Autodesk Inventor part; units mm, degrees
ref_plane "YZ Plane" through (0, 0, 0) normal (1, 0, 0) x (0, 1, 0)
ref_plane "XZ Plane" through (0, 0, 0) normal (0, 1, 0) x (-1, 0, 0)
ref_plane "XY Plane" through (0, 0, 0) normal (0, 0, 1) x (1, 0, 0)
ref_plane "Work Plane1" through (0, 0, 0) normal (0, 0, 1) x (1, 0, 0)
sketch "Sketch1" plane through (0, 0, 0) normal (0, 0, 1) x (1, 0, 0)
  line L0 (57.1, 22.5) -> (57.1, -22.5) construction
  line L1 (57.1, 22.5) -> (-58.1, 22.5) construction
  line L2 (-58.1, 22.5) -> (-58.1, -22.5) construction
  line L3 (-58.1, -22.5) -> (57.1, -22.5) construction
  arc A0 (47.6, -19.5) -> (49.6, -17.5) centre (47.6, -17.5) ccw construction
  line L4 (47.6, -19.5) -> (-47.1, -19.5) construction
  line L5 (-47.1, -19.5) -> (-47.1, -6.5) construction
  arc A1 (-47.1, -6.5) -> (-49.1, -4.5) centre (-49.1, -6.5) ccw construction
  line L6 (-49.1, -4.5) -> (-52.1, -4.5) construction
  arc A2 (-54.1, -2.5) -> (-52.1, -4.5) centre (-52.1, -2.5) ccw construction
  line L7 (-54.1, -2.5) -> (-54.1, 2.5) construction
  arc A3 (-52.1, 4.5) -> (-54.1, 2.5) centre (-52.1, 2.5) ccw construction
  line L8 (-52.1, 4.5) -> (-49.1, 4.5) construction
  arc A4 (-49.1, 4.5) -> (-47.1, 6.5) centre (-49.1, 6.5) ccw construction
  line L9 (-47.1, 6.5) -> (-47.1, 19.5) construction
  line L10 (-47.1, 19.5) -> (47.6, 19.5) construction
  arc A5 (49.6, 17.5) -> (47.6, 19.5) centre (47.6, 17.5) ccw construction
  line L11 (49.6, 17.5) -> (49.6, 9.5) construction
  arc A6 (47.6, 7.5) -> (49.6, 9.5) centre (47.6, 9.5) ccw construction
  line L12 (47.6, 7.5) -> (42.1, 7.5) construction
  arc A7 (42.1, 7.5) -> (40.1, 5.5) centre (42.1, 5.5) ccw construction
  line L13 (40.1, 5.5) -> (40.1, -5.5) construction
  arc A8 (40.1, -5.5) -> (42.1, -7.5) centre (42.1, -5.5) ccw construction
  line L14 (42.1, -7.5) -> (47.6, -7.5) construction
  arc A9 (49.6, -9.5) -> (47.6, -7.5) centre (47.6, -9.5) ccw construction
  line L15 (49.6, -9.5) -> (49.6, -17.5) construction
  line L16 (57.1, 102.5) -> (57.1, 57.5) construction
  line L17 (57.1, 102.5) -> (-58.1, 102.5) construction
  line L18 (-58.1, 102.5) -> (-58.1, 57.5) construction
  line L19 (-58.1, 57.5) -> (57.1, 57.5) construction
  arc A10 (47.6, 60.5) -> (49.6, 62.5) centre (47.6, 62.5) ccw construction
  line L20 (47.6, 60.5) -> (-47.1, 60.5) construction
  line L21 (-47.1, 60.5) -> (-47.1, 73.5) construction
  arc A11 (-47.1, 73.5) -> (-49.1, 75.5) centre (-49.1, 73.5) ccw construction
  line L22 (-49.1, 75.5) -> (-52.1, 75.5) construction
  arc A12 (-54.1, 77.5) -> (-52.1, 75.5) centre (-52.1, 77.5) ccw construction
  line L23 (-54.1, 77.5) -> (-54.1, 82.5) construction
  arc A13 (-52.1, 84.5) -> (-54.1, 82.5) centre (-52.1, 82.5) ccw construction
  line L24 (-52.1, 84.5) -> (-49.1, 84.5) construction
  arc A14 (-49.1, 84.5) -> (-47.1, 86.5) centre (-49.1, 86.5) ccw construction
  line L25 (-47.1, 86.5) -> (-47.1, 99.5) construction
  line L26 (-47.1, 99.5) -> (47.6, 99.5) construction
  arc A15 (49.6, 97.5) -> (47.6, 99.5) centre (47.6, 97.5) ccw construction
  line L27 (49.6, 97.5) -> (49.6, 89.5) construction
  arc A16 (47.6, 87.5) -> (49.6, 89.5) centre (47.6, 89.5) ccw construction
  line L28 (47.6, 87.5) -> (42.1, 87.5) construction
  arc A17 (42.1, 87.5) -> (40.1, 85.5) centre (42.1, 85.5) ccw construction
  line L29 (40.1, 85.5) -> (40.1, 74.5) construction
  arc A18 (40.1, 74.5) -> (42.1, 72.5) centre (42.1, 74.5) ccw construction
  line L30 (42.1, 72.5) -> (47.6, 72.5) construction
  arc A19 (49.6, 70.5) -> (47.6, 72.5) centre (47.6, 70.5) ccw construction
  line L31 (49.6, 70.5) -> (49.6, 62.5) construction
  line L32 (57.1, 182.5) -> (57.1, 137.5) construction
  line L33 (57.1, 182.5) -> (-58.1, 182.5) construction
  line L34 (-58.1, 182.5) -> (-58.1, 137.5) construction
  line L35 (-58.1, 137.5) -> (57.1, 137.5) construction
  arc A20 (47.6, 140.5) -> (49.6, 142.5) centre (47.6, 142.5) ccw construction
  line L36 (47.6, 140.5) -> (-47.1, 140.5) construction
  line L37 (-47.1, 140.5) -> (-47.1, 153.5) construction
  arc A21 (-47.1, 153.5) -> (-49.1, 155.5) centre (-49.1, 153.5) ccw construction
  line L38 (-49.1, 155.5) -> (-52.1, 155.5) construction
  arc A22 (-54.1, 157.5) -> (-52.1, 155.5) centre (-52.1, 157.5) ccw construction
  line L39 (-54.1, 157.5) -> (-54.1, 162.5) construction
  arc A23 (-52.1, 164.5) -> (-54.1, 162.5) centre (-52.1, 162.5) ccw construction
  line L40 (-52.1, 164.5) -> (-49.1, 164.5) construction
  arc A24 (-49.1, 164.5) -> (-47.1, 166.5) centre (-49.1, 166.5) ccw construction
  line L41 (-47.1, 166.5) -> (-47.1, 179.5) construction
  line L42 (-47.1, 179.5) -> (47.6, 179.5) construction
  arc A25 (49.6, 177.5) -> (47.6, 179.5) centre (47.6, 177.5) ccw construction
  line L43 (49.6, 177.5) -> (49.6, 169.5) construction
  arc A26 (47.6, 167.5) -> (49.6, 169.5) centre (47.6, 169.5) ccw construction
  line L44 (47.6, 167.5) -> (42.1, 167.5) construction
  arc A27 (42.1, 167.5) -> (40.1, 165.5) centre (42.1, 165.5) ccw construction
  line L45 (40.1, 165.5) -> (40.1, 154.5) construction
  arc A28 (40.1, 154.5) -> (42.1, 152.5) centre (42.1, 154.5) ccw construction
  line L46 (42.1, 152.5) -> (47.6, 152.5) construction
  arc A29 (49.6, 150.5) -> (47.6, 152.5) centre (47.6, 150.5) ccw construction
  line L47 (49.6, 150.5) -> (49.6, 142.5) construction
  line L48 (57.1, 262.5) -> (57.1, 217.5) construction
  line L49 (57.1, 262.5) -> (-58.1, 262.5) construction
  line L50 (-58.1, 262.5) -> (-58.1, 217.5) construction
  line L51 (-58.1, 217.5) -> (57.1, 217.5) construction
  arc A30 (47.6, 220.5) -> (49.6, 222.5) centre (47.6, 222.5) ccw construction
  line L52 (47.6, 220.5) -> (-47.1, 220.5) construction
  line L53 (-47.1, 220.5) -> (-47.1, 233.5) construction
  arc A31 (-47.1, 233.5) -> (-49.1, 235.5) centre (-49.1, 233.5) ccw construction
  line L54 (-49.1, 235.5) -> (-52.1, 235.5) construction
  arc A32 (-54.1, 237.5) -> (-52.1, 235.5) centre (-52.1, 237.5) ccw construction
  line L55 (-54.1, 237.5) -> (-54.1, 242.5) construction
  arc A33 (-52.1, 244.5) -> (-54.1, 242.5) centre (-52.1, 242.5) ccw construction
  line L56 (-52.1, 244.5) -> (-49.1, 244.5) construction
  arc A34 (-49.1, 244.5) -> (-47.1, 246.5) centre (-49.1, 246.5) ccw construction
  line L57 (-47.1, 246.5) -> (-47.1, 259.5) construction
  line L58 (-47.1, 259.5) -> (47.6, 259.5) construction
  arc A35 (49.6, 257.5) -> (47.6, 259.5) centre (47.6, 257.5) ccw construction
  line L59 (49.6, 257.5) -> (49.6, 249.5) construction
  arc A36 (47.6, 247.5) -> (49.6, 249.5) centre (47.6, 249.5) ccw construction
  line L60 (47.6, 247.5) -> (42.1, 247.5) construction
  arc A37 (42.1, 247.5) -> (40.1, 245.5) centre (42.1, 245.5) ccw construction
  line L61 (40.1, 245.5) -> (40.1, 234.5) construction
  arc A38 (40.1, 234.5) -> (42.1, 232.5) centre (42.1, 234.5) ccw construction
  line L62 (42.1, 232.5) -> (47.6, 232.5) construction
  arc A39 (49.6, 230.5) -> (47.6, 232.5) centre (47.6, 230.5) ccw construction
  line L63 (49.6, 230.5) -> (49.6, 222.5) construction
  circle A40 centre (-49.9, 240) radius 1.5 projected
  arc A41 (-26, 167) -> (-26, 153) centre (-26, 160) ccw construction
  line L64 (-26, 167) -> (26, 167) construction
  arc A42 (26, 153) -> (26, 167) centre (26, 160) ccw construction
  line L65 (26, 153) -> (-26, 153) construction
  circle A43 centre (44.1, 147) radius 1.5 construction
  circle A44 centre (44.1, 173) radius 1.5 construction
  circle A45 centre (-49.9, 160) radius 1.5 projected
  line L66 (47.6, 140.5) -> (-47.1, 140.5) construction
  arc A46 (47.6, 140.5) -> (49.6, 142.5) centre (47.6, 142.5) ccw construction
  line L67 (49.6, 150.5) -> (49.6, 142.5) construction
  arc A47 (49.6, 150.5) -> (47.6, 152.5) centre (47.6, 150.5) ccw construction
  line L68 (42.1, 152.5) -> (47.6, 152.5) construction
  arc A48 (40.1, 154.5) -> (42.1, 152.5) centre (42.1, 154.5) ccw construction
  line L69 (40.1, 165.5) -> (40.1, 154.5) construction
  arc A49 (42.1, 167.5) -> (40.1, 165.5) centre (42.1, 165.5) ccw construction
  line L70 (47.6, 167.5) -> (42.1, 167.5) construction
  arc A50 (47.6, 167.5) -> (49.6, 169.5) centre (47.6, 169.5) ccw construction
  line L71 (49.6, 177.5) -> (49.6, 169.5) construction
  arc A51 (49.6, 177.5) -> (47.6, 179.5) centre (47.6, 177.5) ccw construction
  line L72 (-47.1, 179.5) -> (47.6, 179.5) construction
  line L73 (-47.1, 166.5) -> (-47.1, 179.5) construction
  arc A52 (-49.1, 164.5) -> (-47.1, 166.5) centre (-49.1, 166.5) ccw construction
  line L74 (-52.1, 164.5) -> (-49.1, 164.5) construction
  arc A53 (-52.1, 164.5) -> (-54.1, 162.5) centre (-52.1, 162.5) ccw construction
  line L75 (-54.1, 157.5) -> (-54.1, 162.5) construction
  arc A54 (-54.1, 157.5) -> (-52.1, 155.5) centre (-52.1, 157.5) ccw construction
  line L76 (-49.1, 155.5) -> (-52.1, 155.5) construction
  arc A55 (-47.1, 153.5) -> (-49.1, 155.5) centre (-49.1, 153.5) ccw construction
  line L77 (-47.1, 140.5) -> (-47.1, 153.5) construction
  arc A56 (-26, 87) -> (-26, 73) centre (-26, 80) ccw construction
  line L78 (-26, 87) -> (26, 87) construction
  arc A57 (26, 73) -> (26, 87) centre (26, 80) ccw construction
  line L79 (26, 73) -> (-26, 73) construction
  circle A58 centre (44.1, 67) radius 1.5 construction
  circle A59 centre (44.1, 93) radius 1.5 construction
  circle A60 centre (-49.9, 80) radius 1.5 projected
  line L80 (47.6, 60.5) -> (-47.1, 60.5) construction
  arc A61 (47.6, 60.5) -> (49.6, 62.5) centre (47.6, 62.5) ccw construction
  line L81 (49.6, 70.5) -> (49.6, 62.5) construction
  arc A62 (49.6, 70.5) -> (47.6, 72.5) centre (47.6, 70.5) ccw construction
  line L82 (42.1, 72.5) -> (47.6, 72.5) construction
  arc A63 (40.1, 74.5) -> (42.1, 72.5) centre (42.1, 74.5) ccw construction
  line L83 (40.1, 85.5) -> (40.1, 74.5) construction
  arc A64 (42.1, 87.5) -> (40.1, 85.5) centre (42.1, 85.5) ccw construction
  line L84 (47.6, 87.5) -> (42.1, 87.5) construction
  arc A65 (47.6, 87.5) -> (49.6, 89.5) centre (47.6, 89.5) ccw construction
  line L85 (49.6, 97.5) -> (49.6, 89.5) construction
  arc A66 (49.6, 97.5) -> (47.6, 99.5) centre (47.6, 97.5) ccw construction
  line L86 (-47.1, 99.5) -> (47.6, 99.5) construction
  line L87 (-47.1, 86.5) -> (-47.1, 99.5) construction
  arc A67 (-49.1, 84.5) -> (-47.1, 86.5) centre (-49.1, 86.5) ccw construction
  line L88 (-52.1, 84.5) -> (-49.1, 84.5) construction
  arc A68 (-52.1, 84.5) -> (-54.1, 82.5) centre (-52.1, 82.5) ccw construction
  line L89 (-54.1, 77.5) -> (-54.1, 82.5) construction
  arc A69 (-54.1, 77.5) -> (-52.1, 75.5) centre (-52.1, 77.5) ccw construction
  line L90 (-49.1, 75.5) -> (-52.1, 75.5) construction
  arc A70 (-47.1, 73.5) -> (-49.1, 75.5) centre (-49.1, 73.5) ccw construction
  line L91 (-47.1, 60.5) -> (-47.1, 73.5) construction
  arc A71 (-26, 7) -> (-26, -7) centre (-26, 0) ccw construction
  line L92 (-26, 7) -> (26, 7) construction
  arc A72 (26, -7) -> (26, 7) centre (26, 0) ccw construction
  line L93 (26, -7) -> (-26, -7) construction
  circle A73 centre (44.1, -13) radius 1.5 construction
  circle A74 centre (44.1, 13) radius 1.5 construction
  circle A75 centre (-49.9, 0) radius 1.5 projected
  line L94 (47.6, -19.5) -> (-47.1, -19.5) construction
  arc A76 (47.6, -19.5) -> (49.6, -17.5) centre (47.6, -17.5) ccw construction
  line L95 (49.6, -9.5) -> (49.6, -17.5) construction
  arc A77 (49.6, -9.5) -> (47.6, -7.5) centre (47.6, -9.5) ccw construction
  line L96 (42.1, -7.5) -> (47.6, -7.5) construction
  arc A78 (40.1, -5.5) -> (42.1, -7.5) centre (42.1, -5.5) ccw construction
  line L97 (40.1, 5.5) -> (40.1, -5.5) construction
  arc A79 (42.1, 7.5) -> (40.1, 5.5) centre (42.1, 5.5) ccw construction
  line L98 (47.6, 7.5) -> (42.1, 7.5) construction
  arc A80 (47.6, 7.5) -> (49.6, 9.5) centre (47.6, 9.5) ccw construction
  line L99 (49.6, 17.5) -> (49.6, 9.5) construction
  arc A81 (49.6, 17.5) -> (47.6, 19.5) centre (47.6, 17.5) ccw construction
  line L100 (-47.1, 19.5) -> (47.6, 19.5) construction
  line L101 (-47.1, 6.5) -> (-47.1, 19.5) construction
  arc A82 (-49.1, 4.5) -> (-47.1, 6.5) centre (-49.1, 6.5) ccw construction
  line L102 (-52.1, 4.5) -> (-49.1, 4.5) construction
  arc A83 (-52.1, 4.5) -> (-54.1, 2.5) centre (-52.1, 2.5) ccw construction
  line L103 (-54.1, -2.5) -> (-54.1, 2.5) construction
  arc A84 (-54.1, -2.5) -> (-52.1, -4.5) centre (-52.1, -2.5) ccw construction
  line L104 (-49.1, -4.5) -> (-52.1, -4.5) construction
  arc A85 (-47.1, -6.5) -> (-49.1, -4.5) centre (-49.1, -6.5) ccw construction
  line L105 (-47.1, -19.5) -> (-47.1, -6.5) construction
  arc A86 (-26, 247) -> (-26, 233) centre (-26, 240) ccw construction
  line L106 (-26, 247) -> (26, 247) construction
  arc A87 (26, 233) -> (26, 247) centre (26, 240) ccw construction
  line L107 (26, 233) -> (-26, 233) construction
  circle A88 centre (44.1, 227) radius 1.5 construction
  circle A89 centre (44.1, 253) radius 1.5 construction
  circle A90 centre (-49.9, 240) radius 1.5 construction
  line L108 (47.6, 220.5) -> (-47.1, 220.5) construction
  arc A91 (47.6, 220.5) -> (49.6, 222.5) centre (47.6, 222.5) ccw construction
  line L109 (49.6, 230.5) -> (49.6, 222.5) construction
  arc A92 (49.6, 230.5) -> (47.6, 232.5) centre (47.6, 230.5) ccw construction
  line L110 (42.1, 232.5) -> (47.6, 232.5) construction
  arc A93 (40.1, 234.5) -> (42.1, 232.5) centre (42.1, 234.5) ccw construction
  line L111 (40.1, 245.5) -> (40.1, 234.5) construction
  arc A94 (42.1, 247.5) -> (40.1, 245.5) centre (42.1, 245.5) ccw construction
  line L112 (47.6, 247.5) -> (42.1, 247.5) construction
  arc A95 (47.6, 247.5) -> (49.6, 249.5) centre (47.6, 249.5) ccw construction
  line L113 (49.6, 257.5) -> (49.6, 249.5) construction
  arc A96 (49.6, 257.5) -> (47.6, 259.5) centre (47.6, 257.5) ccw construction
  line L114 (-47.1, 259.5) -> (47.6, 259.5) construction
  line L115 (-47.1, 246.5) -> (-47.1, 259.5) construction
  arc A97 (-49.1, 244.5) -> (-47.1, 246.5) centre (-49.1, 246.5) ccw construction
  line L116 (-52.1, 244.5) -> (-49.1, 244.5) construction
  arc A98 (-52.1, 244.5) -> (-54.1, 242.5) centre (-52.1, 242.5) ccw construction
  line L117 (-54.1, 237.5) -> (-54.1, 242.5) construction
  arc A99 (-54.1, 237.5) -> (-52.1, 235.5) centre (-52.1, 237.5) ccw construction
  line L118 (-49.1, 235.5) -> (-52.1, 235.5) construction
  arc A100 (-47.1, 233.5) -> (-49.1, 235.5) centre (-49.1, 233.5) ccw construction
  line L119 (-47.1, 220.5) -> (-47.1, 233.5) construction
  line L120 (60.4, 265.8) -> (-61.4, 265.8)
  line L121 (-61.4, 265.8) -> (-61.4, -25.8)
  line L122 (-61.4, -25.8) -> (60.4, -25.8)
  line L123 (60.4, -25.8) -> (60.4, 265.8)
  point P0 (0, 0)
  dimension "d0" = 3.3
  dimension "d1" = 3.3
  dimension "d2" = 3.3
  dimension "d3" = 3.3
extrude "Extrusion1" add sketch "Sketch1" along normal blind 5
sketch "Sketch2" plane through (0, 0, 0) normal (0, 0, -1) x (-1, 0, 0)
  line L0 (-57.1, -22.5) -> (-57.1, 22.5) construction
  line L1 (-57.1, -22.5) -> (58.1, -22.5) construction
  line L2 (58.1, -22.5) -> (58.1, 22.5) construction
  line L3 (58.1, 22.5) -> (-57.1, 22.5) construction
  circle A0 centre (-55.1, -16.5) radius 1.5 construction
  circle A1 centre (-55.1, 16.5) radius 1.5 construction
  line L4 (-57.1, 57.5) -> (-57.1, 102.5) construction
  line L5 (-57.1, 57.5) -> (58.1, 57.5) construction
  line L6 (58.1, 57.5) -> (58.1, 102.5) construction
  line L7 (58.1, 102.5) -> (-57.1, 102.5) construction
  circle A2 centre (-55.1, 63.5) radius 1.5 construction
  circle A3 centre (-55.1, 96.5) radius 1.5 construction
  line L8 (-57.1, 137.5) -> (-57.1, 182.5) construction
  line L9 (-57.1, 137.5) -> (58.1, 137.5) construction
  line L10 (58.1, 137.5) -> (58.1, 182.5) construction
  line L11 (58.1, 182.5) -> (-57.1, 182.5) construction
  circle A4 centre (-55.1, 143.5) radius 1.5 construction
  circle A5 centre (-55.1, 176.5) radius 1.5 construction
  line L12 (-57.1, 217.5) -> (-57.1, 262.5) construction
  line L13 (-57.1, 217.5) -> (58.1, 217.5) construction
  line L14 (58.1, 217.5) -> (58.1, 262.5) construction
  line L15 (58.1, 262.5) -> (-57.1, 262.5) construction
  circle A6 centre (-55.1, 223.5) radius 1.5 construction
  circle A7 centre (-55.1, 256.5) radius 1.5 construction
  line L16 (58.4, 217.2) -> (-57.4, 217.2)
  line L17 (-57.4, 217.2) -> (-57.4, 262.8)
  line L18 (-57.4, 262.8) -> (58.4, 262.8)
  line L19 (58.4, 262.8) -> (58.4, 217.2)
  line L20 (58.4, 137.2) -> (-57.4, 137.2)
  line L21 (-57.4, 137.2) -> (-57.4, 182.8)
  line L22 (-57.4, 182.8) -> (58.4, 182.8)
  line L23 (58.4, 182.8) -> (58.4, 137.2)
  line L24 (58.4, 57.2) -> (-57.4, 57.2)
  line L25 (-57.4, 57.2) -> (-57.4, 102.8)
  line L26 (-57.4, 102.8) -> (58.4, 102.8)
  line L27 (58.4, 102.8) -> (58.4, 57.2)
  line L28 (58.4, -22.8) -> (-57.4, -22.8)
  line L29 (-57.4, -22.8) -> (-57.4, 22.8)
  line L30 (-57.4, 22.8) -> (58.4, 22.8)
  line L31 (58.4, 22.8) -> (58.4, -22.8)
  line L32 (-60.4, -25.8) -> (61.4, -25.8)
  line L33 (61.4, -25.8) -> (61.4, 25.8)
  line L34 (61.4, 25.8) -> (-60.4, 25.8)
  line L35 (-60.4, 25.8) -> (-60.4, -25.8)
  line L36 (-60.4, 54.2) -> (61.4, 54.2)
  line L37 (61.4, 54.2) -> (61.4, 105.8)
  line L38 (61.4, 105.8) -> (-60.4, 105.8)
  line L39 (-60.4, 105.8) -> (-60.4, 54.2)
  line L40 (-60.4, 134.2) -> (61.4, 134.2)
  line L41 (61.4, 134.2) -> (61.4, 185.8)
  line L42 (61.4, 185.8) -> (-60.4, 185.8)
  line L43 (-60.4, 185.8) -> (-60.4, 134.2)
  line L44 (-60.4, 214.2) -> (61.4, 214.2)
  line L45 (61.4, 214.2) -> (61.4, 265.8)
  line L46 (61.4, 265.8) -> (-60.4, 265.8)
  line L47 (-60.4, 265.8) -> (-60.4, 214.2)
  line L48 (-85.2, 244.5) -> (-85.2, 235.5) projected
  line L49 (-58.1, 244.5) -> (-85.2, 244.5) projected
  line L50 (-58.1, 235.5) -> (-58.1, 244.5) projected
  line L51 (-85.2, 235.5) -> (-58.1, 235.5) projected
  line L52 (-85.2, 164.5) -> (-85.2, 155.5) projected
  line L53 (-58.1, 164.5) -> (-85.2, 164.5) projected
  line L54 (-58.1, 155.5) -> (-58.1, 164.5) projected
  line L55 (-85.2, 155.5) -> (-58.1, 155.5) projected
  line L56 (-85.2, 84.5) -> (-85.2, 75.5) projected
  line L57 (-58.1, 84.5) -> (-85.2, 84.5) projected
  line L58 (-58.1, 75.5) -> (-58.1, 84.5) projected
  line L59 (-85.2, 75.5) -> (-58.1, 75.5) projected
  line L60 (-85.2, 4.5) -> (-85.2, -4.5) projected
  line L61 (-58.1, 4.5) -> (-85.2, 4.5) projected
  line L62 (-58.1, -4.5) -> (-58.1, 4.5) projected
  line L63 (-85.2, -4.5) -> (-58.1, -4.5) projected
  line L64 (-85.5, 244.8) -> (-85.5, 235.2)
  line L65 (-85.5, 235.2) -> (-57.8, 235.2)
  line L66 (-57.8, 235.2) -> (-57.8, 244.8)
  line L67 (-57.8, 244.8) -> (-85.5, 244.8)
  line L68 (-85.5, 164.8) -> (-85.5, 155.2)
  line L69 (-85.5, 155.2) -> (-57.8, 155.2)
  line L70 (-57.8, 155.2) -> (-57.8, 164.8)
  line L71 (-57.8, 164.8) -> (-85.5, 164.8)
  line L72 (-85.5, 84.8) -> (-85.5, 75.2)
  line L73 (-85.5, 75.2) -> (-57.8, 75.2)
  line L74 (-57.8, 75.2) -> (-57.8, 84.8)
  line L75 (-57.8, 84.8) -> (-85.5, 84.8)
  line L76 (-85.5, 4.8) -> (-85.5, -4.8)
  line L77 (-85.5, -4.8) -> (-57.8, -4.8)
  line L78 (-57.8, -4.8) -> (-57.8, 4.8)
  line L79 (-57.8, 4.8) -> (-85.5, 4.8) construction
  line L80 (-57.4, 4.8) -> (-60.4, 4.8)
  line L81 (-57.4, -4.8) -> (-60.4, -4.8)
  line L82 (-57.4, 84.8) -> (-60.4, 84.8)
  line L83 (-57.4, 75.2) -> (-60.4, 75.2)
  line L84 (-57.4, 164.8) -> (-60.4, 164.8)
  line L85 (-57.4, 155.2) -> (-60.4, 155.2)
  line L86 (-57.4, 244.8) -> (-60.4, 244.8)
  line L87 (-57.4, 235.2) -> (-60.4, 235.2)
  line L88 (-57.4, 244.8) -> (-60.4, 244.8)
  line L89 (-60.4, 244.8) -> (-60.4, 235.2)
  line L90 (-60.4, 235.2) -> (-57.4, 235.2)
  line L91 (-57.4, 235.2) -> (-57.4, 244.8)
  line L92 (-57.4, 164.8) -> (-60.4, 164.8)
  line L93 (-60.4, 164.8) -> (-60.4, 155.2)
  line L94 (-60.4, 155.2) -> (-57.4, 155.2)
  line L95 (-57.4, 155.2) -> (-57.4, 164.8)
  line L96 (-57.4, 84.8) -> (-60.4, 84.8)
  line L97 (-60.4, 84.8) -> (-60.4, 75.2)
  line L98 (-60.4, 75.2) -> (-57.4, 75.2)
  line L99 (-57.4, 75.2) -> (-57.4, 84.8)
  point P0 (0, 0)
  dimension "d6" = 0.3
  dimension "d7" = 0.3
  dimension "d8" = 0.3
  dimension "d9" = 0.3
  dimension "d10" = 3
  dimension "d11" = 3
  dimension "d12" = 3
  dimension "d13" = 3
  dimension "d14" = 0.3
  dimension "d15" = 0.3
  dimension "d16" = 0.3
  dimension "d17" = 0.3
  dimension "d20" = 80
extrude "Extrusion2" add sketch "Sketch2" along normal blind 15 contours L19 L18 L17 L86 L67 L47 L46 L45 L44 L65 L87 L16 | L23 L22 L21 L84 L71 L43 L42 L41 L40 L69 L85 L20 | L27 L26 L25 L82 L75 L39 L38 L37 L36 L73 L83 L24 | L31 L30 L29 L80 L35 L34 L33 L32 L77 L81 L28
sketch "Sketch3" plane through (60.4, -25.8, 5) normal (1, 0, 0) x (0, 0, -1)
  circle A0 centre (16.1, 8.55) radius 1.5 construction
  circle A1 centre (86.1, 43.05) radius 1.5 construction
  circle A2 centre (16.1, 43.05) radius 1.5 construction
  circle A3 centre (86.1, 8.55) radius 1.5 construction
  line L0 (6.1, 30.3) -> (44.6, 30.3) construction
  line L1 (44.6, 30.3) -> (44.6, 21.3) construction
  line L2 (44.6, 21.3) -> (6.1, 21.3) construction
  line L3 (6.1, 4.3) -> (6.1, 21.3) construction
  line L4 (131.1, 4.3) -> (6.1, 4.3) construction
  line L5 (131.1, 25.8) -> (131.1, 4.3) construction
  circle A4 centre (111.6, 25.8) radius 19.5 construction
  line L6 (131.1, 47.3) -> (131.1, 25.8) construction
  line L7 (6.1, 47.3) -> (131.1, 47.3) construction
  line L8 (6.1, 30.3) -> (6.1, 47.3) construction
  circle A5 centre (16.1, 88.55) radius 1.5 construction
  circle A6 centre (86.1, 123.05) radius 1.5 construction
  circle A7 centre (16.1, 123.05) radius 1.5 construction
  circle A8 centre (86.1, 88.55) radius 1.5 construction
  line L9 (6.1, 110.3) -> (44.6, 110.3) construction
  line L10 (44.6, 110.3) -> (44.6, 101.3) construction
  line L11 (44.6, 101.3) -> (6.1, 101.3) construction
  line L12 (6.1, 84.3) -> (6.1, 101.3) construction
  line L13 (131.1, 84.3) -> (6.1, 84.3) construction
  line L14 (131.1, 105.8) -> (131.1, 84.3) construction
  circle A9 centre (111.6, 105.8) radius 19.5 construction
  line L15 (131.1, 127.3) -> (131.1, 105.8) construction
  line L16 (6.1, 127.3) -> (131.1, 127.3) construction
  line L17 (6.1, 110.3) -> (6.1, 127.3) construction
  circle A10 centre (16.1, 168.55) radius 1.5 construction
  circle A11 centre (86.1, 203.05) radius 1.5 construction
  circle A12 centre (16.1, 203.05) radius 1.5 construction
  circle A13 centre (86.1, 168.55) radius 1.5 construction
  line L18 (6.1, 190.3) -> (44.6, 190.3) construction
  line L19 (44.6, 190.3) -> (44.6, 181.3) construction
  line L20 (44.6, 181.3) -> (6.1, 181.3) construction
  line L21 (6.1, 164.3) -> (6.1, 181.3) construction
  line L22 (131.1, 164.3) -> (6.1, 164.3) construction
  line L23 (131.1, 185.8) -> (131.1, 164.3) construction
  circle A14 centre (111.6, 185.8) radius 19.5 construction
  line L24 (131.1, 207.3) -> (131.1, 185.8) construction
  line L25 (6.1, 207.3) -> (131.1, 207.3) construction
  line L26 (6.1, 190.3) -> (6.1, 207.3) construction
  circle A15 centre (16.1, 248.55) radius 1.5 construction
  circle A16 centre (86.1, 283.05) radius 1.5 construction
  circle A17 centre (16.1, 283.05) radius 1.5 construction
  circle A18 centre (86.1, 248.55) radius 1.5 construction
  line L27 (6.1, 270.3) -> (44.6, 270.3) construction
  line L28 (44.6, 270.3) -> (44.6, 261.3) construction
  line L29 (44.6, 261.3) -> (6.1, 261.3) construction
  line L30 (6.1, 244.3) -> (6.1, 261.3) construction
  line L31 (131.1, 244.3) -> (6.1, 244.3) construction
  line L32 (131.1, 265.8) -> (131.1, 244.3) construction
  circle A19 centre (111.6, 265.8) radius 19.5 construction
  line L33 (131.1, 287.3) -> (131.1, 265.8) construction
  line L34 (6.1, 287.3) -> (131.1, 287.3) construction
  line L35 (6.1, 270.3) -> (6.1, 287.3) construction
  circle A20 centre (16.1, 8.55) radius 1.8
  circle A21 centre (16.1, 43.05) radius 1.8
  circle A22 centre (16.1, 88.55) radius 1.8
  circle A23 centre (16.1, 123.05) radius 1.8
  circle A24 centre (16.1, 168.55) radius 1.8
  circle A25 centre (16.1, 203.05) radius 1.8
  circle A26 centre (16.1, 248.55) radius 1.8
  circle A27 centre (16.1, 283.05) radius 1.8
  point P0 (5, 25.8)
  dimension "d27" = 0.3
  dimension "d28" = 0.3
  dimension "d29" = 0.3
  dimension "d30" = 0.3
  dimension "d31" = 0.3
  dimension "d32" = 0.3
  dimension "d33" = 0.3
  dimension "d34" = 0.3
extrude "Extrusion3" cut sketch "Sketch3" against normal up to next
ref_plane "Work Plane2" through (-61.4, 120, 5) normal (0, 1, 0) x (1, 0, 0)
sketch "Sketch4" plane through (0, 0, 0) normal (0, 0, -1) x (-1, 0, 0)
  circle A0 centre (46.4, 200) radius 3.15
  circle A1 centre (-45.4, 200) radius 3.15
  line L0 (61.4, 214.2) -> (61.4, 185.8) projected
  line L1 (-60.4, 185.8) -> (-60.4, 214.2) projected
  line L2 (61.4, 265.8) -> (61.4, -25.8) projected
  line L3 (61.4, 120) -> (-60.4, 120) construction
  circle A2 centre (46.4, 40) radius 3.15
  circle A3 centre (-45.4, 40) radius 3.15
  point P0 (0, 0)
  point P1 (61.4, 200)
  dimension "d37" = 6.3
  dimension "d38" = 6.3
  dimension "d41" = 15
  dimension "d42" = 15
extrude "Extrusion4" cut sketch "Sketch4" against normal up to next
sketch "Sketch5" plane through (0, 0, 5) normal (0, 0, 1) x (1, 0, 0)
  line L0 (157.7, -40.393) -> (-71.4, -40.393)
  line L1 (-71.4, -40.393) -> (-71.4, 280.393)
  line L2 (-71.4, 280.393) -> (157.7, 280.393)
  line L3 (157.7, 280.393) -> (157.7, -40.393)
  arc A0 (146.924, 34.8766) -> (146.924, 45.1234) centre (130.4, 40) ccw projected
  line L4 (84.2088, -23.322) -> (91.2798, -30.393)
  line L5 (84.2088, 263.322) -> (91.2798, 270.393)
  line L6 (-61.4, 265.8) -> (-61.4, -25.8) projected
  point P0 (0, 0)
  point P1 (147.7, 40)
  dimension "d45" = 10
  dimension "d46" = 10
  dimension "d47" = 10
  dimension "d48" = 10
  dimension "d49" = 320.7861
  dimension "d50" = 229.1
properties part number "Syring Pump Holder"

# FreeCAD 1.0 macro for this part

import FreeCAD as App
import Part
import Sketcher

V = App.Vector
Q = App.Units.Quantity

doc = App.newDocument("Part")
body = doc.addObject("PartDesign::Body", "Body")

# Sketch on XY plane
sketch1 = body.newObject("Sketcher::SketchObject", "Sketch")
sketch1.AttachmentSupport = (doc.getObject("XY_Plane"), [""])
sketch1.MapMode = "FlatFace"
sketch1.addGeometry(Part.LineSegment(V(60.4, -25.8, 0), V(60.4, 265.8, 0)), False)
sketch1.addGeometry(Part.LineSegment(V(60.4, 265.8, 0), V(-61.4, 265.8, 0)), False)
sketch1.addGeometry(Part.LineSegment(V(-61.4, 265.8, 0), V(-61.4, -25.8, 0)), False)
sketch1.addGeometry(Part.LineSegment(V(-61.4, -25.8, 0), V(60.4, -25.8, 0)), False)
sketch1.addGeometry(Part.Circle(V(-49.9, 0, 0), V(0, 0, 1), 1.5), False)
sketch1.addGeometry(Part.Circle(V(-49.9, 80, 0), V(0, 0, 1), 1.5), False)
sketch1.addGeometry(Part.Circle(V(-49.9, 160, 0), V(0, 0, 1), 1.5), False)
sketch1.addGeometry(Part.Circle(V(-49.9, 240, 0), V(0, 0, 1), 1.5), False)
sketch1.addConstraint(Sketcher.Constraint("Coincident", 0, 2, 1, 1))
sketch1.addConstraint(Sketcher.Constraint("Coincident", 1, 2, 2, 1))
sketch1.addConstraint(Sketcher.Constraint("Coincident", 2, 2, 3, 1))
sketch1.addConstraint(Sketcher.Constraint("Coincident", 3, 2, 0, 1))
sketch1.addConstraint(Sketcher.Constraint("Vertical", 0))
sketch1.addConstraint(Sketcher.Constraint("Horizontal", 1))
sketch1.addConstraint(Sketcher.Constraint("Vertical", 2))
sketch1.addConstraint(Sketcher.Constraint("Horizontal", 3))
sketch1.addConstraint(Sketcher.Constraint("Equal", 4, 5))
sketch1.addConstraint(Sketcher.Constraint("Equal", 5, 6))
sketch1.addConstraint(Sketcher.Constraint("Equal", 6, 7))
sketch1.addConstraint(Sketcher.Constraint("PointOnObject", 4, 3, -1))
sketch1.addConstraint(Sketcher.Constraint("Vertical", 4, 3, 5, 3))
sketch1.addConstraint(Sketcher.Constraint("Vertical", 5, 3, 6, 3))
sketch1.addConstraint(Sketcher.Constraint("Vertical", 6, 3, 7, 3))
sketch1.addConstraint(Sketcher.Constraint("Diameter", 4, Q("3 mm")))
sketch1.addConstraint(Sketcher.Constraint("DistanceX", 1, 2, 1, 1, Q("121.8 mm")))
sketch1.addConstraint(Sketcher.Constraint("DistanceY", 0, 1, 0, 2, Q("291.6 mm")))
sketch1.addConstraint(Sketcher.Constraint("DistanceY", -1, 1, 5, 3, Q("80 mm")))
sketch1.addConstraint(Sketcher.Constraint("DistanceY", -1, 1, 6, 3, Q("160 mm")))
sketch1.addConstraint(Sketcher.Constraint("DistanceY", -1, 1, 7, 3, Q("240 mm")))
sketch1.addConstraint(Sketcher.Constraint("DistanceX", 4, 3, -1, 1, Q("49.9 mm")))
sketch1.addConstraint(Sketcher.Constraint("DistanceX", -1, 1, 0, 2, Q("60.4 mm")))
sketch1.addConstraint(Sketcher.Constraint("DistanceY", -1, 1, 0, 2, Q("265.8 mm")))
pad1 = body.newObject("PartDesign::Pad", "Pad")
pad1.Profile = sketch1
pad1.Length = 5

# Sketch on XY plane
sketch2 = body.newObject("Sketcher::SketchObject", "Sketch001")
sketch2.AttachmentSupport = (doc.getObject("XY_Plane"), [""])
sketch2.MapMode = "FlatFace"
sketch2.addGeometry(Part.LineSegment(V(-58.4, 262.8, 0), V(-58.4, 217.2, 0)), False)
sketch2.addGeometry(Part.LineSegment(V(-58.4, 217.2, 0), V(57.4, 217.2, 0)), False)
sketch2.addGeometry(Part.LineSegment(V(57.4, 217.2, 0), V(57.4, 235.2, 0)), False)
sketch2.addGeometry(Part.LineSegment(V(57.4, 235.2, 0), V(60.4, 235.2, 0)), False)
sketch2.addGeometry(Part.LineSegment(V(60.4, 235.2, 0), V(60.4, 214.2, 0)), False)
sketch2.addGeometry(Part.LineSegment(V(60.4, 214.2, 0), V(-61.4, 214.2, 0)), False)
sketch2.addGeometry(Part.LineSegment(V(-61.4, 214.2, 0), V(-61.4, 265.8, 0)), False)
sketch2.addGeometry(Part.LineSegment(V(-61.4, 265.8, 0), V(60.4, 265.8, 0)), False)
sketch2.addGeometry(Part.LineSegment(V(60.4, 265.8, 0), V(60.4, 244.8, 0)), False)
sketch2.addGeometry(Part.LineSegment(V(60.4, 244.8, 0), V(57.4, 244.8, 0)), False)
sketch2.addGeometry(Part.LineSegment(V(57.4, 244.8, 0), V(57.4, 262.8, 0)), False)
sketch2.addGeometry(Part.LineSegment(V(57.4, 262.8, 0), V(-58.4, 262.8, 0)), False)
sketch2.addGeometry(Part.LineSegment(V(-58.4, 182.8, 0), V(-58.4, 137.2, 0)), False)
sketch2.addGeometry(Part.LineSegment(V(-58.4, 137.2, 0), V(57.4, 137.2, 0)), False)
sketch2.addGeometry(Part.LineSegment(V(57.4, 137.2, 0), V(57.4, 155.2, 0)), False)
sketch2.addGeometry(Part.LineSegment(V(57.4, 155.2, 0), V(60.4, 155.2, 0)), False)
sketch2.addGeometry(Part.LineSegment(V(60.4, 155.2, 0), V(60.4, 134.2, 0)), False)
sketch2.addGeometry(Part.LineSegment(V(60.4, 134.2, 0), V(-61.4, 134.2, 0)), False)
sketch2.addGeometry(Part.LineSegment(V(-61.4, 134.2, 0), V(-61.4, 185.8, 0)), False)
sketch2.addGeometry(Part.LineSegment(V(-61.4, 185.8, 0), V(60.4, 185.8, 0)), False)
sketch2.addGeometry(Part.LineSegment(V(60.4, 185.8, 0), V(60.4, 164.8, 0)), False)
sketch2.addGeometry(Part.LineSegment(V(60.4, 164.8, 0), V(57.4, 164.8, 0)), False)
sketch2.addGeometry(Part.LineSegment(V(57.4, 164.8, 0), V(57.4, 182.8, 0)), False)
sketch2.addGeometry(Part.LineSegment(V(57.4, 182.8, 0), V(-58.4, 182.8, 0)), False)
sketch2.addGeometry(Part.LineSegment(V(-58.4, 102.8, 0), V(-58.4, 57.2, 0)), False)
sketch2.addGeometry(Part.LineSegment(V(-58.4, 57.2, 0), V(57.4, 57.2, 0)), False)
sketch2.addGeometry(Part.LineSegment(V(57.4, 57.2, 0), V(57.4, 75.2, 0)), False)
sketch2.addGeometry(Part.LineSegment(V(57.4, 75.2, 0), V(60.4, 75.2, 0)), False)
sketch2.addGeometry(Part.LineSegment(V(60.4, 75.2, 0), V(60.4, 54.2, 0)), False)
sketch2.addGeometry(Part.LineSegment(V(60.4, 54.2, 0), V(-61.4, 54.2, 0)), False)
sketch2.addGeometry(Part.LineSegment(V(-61.4, 54.2, 0), V(-61.4, 105.8, 0)), False)
sketch2.addGeometry(Part.LineSegment(V(-61.4, 105.8, 0), V(60.4, 105.8, 0)), False)
sketch2.addGeometry(Part.LineSegment(V(60.4, 105.8, 0), V(60.4, 84.8, 0)), False)
sketch2.addGeometry(Part.LineSegment(V(60.4, 84.8, 0), V(57.4, 84.8, 0)), False)
sketch2.addGeometry(Part.LineSegment(V(57.4, 84.8, 0), V(57.4, 102.8, 0)), False)
sketch2.addGeometry(Part.LineSegment(V(57.4, 102.8, 0), V(-58.4, 102.8, 0)), False)
sketch2.addGeometry(Part.LineSegment(V(-58.4, 22.8, 0), V(-58.4, -22.8, 0)), False)
sketch2.addGeometry(Part.LineSegment(V(-58.4, -22.8, 0), V(57.4, -22.8, 0)), False)
sketch2.addGeometry(Part.LineSegment(V(57.4, -22.8, 0), V(57.4, -4.8, 0)), False)
sketch2.addGeometry(Part.LineSegment(V(57.4, -4.8, 0), V(60.4, -4.8, 0)), False)
sketch2.addGeometry(Part.LineSegment(V(60.4, -4.8, 0), V(60.4, -25.8, 0)), False)
sketch2.addGeometry(Part.LineSegment(V(60.4, -25.8, 0), V(-61.4, -25.8, 0)), False)
sketch2.addGeometry(Part.LineSegment(V(-61.4, -25.8, 0), V(-61.4, 25.8, 0)), False)
sketch2.addGeometry(Part.LineSegment(V(-61.4, 25.8, 0), V(60.4, 25.8, 0)), False)
sketch2.addGeometry(Part.LineSegment(V(60.4, 25.8, 0), V(60.4, 4.8, 0)), False)
sketch2.addGeometry(Part.LineSegment(V(60.4, 4.8, 0), V(57.4, 4.8, 0)), False)
sketch2.addGeometry(Part.LineSegment(V(57.4, 4.8, 0), V(57.4, 22.8, 0)), False)
sketch2.addGeometry(Part.LineSegment(V(57.4, 22.8, 0), V(-58.4, 22.8, 0)), False)
sketch2.addConstraint(Sketcher.Constraint("Coincident", 0, 2, 1, 1))
sketch2.addConstraint(Sketcher.Constraint("Coincident", 1, 2, 2, 1))
sketch2.addConstraint(Sketcher.Constraint("Coincident", 2, 2, 3, 1))
sketch2.addConstraint(Sketcher.Constraint("Coincident", 3, 2, 4, 1))
sketch2.addConstraint(Sketcher.Constraint("Coincident", 4, 2, 5, 1))
sketch2.addConstraint(Sketcher.Constraint("Coincident", 5, 2, 6, 1))
sketch2.addConstraint(Sketcher.Constraint("Coincident", 6, 2, 7, 1))
sketch2.addConstraint(Sketcher.Constraint("Coincident", 7, 2, 8, 1))
sketch2.addConstraint(Sketcher.Constraint("Coincident", 8, 2, 9, 1))
sketch2.addConstraint(Sketcher.Constraint("Coincident", 9, 2, 10, 1))
sketch2.addConstraint(Sketcher.Constraint("Coincident", 10, 2, 11, 1))
sketch2.addConstraint(Sketcher.Constraint("Coincident", 11, 2, 0, 1))
sketch2.addConstraint(Sketcher.Constraint("Coincident", 12, 2, 13, 1))
sketch2.addConstraint(Sketcher.Constraint("Coincident", 13, 2, 14, 1))
sketch2.addConstraint(Sketcher.Constraint("Coincident", 14, 2, 15, 1))
sketch2.addConstraint(Sketcher.Constraint("Coincident", 15, 2, 16, 1))
sketch2.addConstraint(Sketcher.Constraint("Coincident", 16, 2, 17, 1))
sketch2.addConstraint(Sketcher.Constraint("Coincident", 17, 2, 18, 1))
sketch2.addConstraint(Sketcher.Constraint("Coincident", 18, 2, 19, 1))
sketch2.addConstraint(Sketcher.Constraint("Coincident", 19, 2, 20, 1))
sketch2.addConstraint(Sketcher.Constraint("Coincident", 20, 2, 21, 1))
sketch2.addConstraint(Sketcher.Constraint("Coincident", 21, 2, 22, 1))
sketch2.addConstraint(Sketcher.Constraint("Coincident", 22, 2, 23, 1))
sketch2.addConstraint(Sketcher.Constraint("Coincident", 23, 2, 12, 1))
sketch2.addConstraint(Sketcher.Constraint("Coincident", 24, 2, 25, 1))
sketch2.addConstraint(Sketcher.Constraint("Coincident", 25, 2, 26, 1))
sketch2.addConstraint(Sketcher.Constraint("Coincident", 26, 2, 27, 1))
sketch2.addConstraint(Sketcher.Constraint("Coincident", 27, 2, 28, 1))
sketch2.addConstraint(Sketcher.Constraint("Coincident", 28, 2, 29, 1))
sketch2.addConstraint(Sketcher.Constraint("Coincident", 29, 2, 30, 1))
sketch2.addConstraint(Sketcher.Constraint("Coincident", 30, 2, 31, 1))
sketch2.addConstraint(Sketcher.Constraint("Coincident", 31, 2, 32, 1))
sketch2.addConstraint(Sketcher.Constraint("Coincident", 32, 2, 33, 1))
sketch2.addConstraint(Sketcher.Constraint("Coincident", 33, 2, 34, 1))
sketch2.addConstraint(Sketcher.Constraint("Coincident", 34, 2, 35, 1))
sketch2.addConstraint(Sketcher.Constraint("Coincident", 35, 2, 24, 1))
sketch2.addConstraint(Sketcher.Constraint("Coincident", 36, 2, 37, 1))
sketch2.addConstraint(Sketcher.Constraint("Coincident", 37, 2, 38, 1))
sketch2.addConstraint(Sketcher.Constraint("Coincident", 38, 2, 39, 1))
sketch2.addConstraint(Sketcher.Constraint("Coincident", 39, 2, 40, 1))
sketch2.addConstraint(Sketcher.Constraint("Coincident", 40, 2, 41, 1))
sketch2.addConstraint(Sketcher.Constraint("Coincident", 41, 2, 42, 1))
sketch2.addConstraint(Sketcher.Constraint("Coincident", 42, 2, 43, 1))
sketch2.addConstraint(Sketcher.Constraint("Coincident", 43, 2, 44, 1))
sketch2.addConstraint(Sketcher.Constraint("Coincident", 44, 2, 45, 1))
sketch2.addConstraint(Sketcher.Constraint("Coincident", 45, 2, 46, 1))
sketch2.addConstraint(Sketcher.Constraint("Coincident", 46, 2, 47, 1))
sketch2.addConstraint(Sketcher.Constraint("Coincident", 47, 2, 36, 1))
sketch2.addConstraint(Sketcher.Constraint("Vertical", 0))
sketch2.addConstraint(Sketcher.Constraint("Horizontal", 1))
sketch2.addConstraint(Sketcher.Constraint("Vertical", 2))
sketch2.addConstraint(Sketcher.Constraint("Horizontal", 3))
sketch2.addConstraint(Sketcher.Constraint("Vertical", 4))
sketch2.addConstraint(Sketcher.Constraint("Horizontal", 5))
sketch2.addConstraint(Sketcher.Constraint("Vertical", 6))
sketch2.addConstraint(Sketcher.Constraint("Horizontal", 7))
sketch2.addConstraint(Sketcher.Constraint("Vertical", 8))
sketch2.addConstraint(Sketcher.Constraint("Horizontal", 9))
sketch2.addConstraint(Sketcher.Constraint("Vertical", 10))
sketch2.addConstraint(Sketcher.Constraint("Horizontal", 11))
sketch2.addConstraint(Sketcher.Constraint("Vertical", 12))
sketch2.addConstraint(Sketcher.Constraint("Horizontal", 13))
sketch2.addConstraint(Sketcher.Constraint("Vertical", 14))
sketch2.addConstraint(Sketcher.Constraint("Horizontal", 15))
sketch2.addConstraint(Sketcher.Constraint("Vertical", 16))
sketch2.addConstraint(Sketcher.Constraint("Horizontal", 17))
sketch2.addConstraint(Sketcher.Constraint("Vertical", 18))
sketch2.addConstraint(Sketcher.Constraint("Horizontal", 19))
sketch2.addConstraint(Sketcher.Constraint("Vertical", 20))
sketch2.addConstraint(Sketcher.Constraint("Horizontal", 21))
sketch2.addConstraint(Sketcher.Constraint("Vertical", 22))
sketch2.addConstraint(Sketcher.Constraint("Horizontal", 23))
sketch2.addConstraint(Sketcher.Constraint("Vertical", 24))
sketch2.addConstraint(Sketcher.Constraint("Horizontal", 25))
sketch2.addConstraint(Sketcher.Constraint("Vertical", 26))
sketch2.addConstraint(Sketcher.Constraint("Horizontal", 27))
sketch2.addConstraint(Sketcher.Constraint("Vertical", 28))
sketch2.addConstraint(Sketcher.Constraint("Horizontal", 29))
sketch2.addConstraint(Sketcher.Constraint("Vertical", 30))
sketch2.addConstraint(Sketcher.Constraint("Horizontal", 31))
sketch2.addConstraint(Sketcher.Constraint("Vertical", 32))
sketch2.addConstraint(Sketcher.Constraint("Horizontal", 33))
sketch2.addConstraint(Sketcher.Constraint("Vertical", 34))
sketch2.addConstraint(Sketcher.Constraint("Horizontal", 35))
sketch2.addConstraint(Sketcher.Constraint("Vertical", 36))
sketch2.addConstraint(Sketcher.Constraint("Horizontal", 37))
sketch2.addConstraint(Sketcher.Constraint("Vertical", 38))
sketch2.addConstraint(Sketcher.Constraint("Horizontal", 39))
sketch2.addConstraint(Sketcher.Constraint("Vertical", 40))
sketch2.addConstraint(Sketcher.Constraint("Horizontal", 41))
sketch2.addConstraint(Sketcher.Constraint("Vertical", 42))
sketch2.addConstraint(Sketcher.Constraint("Horizontal", 43))
sketch2.addConstraint(Sketcher.Constraint("Vertical", 44))
sketch2.addConstraint(Sketcher.Constraint("Horizontal", 45))
sketch2.addConstraint(Sketcher.Constraint("Vertical", 46))
sketch2.addConstraint(Sketcher.Constraint("Horizontal", 47))
sketch2.addConstraint(Sketcher.Constraint("Symmetric", 40, 2, 43, 2, -1))
sketch2.addConstraint(Sketcher.Constraint("Symmetric", 38, 2, 45, 2, -1))
sketch2.addConstraint(Sketcher.Constraint("Vertical", 4, 2, 7, 2))
sketch2.addConstraint(Sketcher.Constraint("Vertical", 2, 2, 9, 2))
sketch2.addConstraint(Sketcher.Constraint("Vertical", 11, 2, 12, 2))
sketch2.addConstraint(Sketcher.Constraint("Vertical", 10, 2, 13, 2))
sketch2.addConstraint(Sketcher.Constraint("Vertical", 8, 2, 15, 2))
sketch2.addConstraint(Sketcher.Constraint("Vertical", 6, 2, 17, 2))
sketch2.addConstraint(Sketcher.Constraint("Vertical", 16, 2, 19, 2))
sketch2.addConstraint(Sketcher.Constraint("Vertical", 14, 2, 21, 2))
sketch2.addConstraint(Sketcher.Constraint("Vertical", 23, 2, 24, 2))
sketch2.addConstraint(Sketcher.Constraint("Vertical", 22, 2, 25, 2))
sketch2.addConstraint(Sketcher.Constraint("Vertical", 20, 2, 27, 2))
sketch2.addConstraint(Sketcher.Constraint("Vertical", 18, 2, 29, 2))
sketch2.addConstraint(Sketcher.Constraint("Vertical", 28, 2, 31, 2))
sketch2.addConstraint(Sketcher.Constraint("Vertical", 26, 2, 33, 2))
sketch2.addConstraint(Sketcher.Constraint("Vertical", 35, 2, 36, 2))
sketch2.addConstraint(Sketcher.Constraint("Vertical", 34, 2, 37, 2))
sketch2.addConstraint(Sketcher.Constraint("Vertical", 32, 2, 39, 2))
sketch2.addConstraint(Sketcher.Constraint("Vertical", 30, 2, 41, 2))
sketch2.addConstraint(Sketcher.Constraint("Equal", 4, 8))
sketch2.addConstraint(Sketcher.Constraint("Equal", 2, 10))
sketch2.addConstraint(Sketcher.Constraint("Equal", 0, 12))
sketch2.addConstraint(Sketcher.Constraint("Equal", 10, 14))
sketch2.addConstraint(Sketcher.Constraint("Equal", 8, 16))
sketch2.addConstraint(Sketcher.Constraint("Equal", 6, 18))
sketch2.addConstraint(Sketcher.Constraint("Equal", 16, 20))
sketch2.addConstraint(Sketcher.Constraint("Equal", 12, 24))
sketch2.addConstraint(Sketcher.Constraint("Equal", 22, 26))
sketch2.addConstraint(Sketcher.Constraint("Equal", 20, 28))
sketch2.addConstraint(Sketcher.Constraint("Equal", 18, 30))
sketch2.addConstraint(Sketcher.Constraint("Equal", 28, 32))
sketch2.addConstraint(Sketcher.Constraint("Equal", 24, 36))
sketch2.addConstraint(Sketcher.Constraint("Equal", 34, 38))
sketch2.addConstraint(Sketcher.Constraint("Equal", 32, 40))
sketch2.addConstraint(Sketcher.Constraint("Equal", 30, 42))
sketch2.addConstraint(Sketcher.Constraint("DistanceX", 3, 1, 3, 2, Q("3 mm")))
sketch2.addConstraint(Sketcher.Constraint("DistanceY", 4, 2, 1, 2, Q("3 mm")))
sketch2.addConstraint(Sketcher.Constraint("DistanceX", 5, 2, 0, 2, Q("3 mm")))
sketch2.addConstraint(Sketcher.Constraint("DistanceY", 12, 2, 0, 2, Q("80 mm")))
sketch2.addConstraint(Sketcher.Constraint("DistanceY", 24, 2, 12, 2, Q("80 mm")))
sketch2.addConstraint(Sketcher.Constraint("DistanceY", 36, 2, 24, 2, Q("80 mm")))
sketch2.addConstraint(Sketcher.Constraint("DistanceY", 2, 1, 2, 2, Q("18 mm")))
sketch2.addConstraint(Sketcher.Constraint("DistanceX", 1, 1, 1, 2, Q("115.8 mm")))
sketch2.addConstraint(Sketcher.Constraint("DistanceY", 0, 2, 0, 1, Q("45.6 mm")))
sketch2.addConstraint(Sketcher.Constraint("DistanceX", 0, 2, -1, 1, Q("58.4 mm")))
pad2 = body.newObject("PartDesign::Pad", "Pad001")
pad2.Profile = sketch2
pad2.Length = 15
pad2.Reversed = True

# Sketch on YZ plane
sketch3 = body.newObject("Sketcher::SketchObject", "Sketch002")
sketch3.AttachmentSupport = (doc.getObject("YZ_Plane"), [""])
sketch3.MapMode = "FlatFace"
sketch3.AttachmentOffset = App.Placement(V(0, 0, 60.4), App.Rotation())
sketch3.addGeometry(Part.Circle(V(-17.2, -11.1, 0), V(0, 0, 1), 1.8), False)
sketch3.addGeometry(Part.Circle(V(17.2, -11.1, 0), V(0, 0, 1), 1.8), False)
sketch3.addGeometry(Part.Circle(V(62.8, -11.1, 0), V(0, 0, 1), 1.8), False)
sketch3.addGeometry(Part.Circle(V(97.2, -11.1, 0), V(0, 0, 1), 1.8), False)
sketch3.addGeometry(Part.Circle(V(142.8, -11.1, 0), V(0, 0, 1), 1.8), False)
sketch3.addGeometry(Part.Circle(V(177.2, -11.1, 0), V(0, 0, 1), 1.8), False)
sketch3.addGeometry(Part.Circle(V(222.8, -11.1, 0), V(0, 0, 1), 1.8), False)
sketch3.addGeometry(Part.Circle(V(257.2, -11.1, 0), V(0, 0, 1), 1.8), False)
sketch3.addConstraint(Sketcher.Constraint("Equal", 0, 1))
sketch3.addConstraint(Sketcher.Constraint("Equal", 1, 2))
sketch3.addConstraint(Sketcher.Constraint("Equal", 2, 3))
sketch3.addConstraint(Sketcher.Constraint("Equal", 3, 4))
sketch3.addConstraint(Sketcher.Constraint("Equal", 4, 5))
sketch3.addConstraint(Sketcher.Constraint("Equal", 5, 6))
sketch3.addConstraint(Sketcher.Constraint("Equal", 6, 7))
sketch3.addConstraint(Sketcher.Constraint("Symmetric", 0, 3, 1, 3, -2))
sketch3.addConstraint(Sketcher.Constraint("Horizontal", 1, 3, 2, 3))
sketch3.addConstraint(Sketcher.Constraint("Horizontal", 2, 3, 3, 3))
sketch3.addConstraint(Sketcher.Constraint("Horizontal", 3, 3, 4, 3))
sketch3.addConstraint(Sketcher.Constraint("Horizontal", 4, 3, 5, 3))
sketch3.addConstraint(Sketcher.Constraint("Horizontal", 5, 3, 6, 3))
sketch3.addConstraint(Sketcher.Constraint("Horizontal", 6, 3, 7, 3))
sketch3.addConstraint(Sketcher.Constraint("Diameter", 0, Q("3.6 mm")))
sketch3.addConstraint(Sketcher.Constraint("DistanceX", 0, 3, 2, 3, Q("80 mm")))
sketch3.addConstraint(Sketcher.Constraint("DistanceX", 1, 3, 3, 3, Q("80 mm")))
sketch3.addConstraint(Sketcher.Constraint("DistanceX", 2, 3, 4, 3, Q("80 mm")))
sketch3.addConstraint(Sketcher.Constraint("DistanceX", 3, 3, 5, 3, Q("80 mm")))
sketch3.addConstraint(Sketcher.Constraint("DistanceX", 4, 3, 6, 3, Q("80 mm")))
sketch3.addConstraint(Sketcher.Constraint("DistanceX", 5, 3, 7, 3, Q("80 mm")))
sketch3.addConstraint(Sketcher.Constraint("DistanceY", 0, 3, -1, 1, Q("11.1 mm")))
sketch3.addConstraint(Sketcher.Constraint("DistanceX", 0, 3, 1, 3, Q("34.5 mm")))
pocket1 = body.newObject("PartDesign::Pocket", "Pocket")
pocket1.Profile = sketch3
pocket1.Length = 3

# Sketch on XY plane
sketch4 = body.newObject("Sketcher::SketchObject", "Sketch003")
sketch4.AttachmentSupport = (doc.getObject("XY_Plane"), [""])
sketch4.MapMode = "FlatFace"
sketch4.addGeometry(Part.Circle(V(-46.4, 200, 0), V(0, 0, 1), 3.1), False)
sketch4.addGeometry(Part.Circle(V(45.4, 200, 0), V(0, 0, 1), 3.1), False)
sketch4.addGeometry(Part.Circle(V(-46.4, 40, 0), V(0, 0, 1), 3.1), False)
sketch4.addGeometry(Part.Circle(V(45.4, 40, 0), V(0, 0, 1), 3.1), False)
sketch4.addConstraint(Sketcher.Constraint("Equal", 0, 1))
sketch4.addConstraint(Sketcher.Constraint("Equal", 1, 2))
sketch4.addConstraint(Sketcher.Constraint("Equal", 2, 3))
sketch4.addConstraint(Sketcher.Constraint("Horizontal", 0, 3, 1, 3))
sketch4.addConstraint(Sketcher.Constraint("Horizontal", 2, 3, 3, 3))
sketch4.addConstraint(Sketcher.Constraint("Vertical", 0, 3, 2, 3))
sketch4.addConstraint(Sketcher.Constraint("Vertical", 1, 3, 3, 3))
sketch4.addConstraint(Sketcher.Constraint("Diameter", 0, Q("6.3 mm")))
sketch4.addConstraint(Sketcher.Constraint("DistanceY", -1, 1, 0, 3, Q("200 mm")))
sketch4.addConstraint(Sketcher.Constraint("DistanceY", -1, 1, 2, 3, Q("40 mm")))
sketch4.addConstraint(Sketcher.Constraint("DistanceX", 0, 3, -1, 1, Q("46.4 mm")))
sketch4.addConstraint(Sketcher.Constraint("DistanceX", -1, 1, 1, 3, Q("45.4 mm")))
pocket2 = body.newObject("PartDesign::Pocket", "Pocket001")
pocket2.Profile = sketch4
pocket2.Type = "UpToFirst"
pocket2.Reversed = True

doc.recompute()
